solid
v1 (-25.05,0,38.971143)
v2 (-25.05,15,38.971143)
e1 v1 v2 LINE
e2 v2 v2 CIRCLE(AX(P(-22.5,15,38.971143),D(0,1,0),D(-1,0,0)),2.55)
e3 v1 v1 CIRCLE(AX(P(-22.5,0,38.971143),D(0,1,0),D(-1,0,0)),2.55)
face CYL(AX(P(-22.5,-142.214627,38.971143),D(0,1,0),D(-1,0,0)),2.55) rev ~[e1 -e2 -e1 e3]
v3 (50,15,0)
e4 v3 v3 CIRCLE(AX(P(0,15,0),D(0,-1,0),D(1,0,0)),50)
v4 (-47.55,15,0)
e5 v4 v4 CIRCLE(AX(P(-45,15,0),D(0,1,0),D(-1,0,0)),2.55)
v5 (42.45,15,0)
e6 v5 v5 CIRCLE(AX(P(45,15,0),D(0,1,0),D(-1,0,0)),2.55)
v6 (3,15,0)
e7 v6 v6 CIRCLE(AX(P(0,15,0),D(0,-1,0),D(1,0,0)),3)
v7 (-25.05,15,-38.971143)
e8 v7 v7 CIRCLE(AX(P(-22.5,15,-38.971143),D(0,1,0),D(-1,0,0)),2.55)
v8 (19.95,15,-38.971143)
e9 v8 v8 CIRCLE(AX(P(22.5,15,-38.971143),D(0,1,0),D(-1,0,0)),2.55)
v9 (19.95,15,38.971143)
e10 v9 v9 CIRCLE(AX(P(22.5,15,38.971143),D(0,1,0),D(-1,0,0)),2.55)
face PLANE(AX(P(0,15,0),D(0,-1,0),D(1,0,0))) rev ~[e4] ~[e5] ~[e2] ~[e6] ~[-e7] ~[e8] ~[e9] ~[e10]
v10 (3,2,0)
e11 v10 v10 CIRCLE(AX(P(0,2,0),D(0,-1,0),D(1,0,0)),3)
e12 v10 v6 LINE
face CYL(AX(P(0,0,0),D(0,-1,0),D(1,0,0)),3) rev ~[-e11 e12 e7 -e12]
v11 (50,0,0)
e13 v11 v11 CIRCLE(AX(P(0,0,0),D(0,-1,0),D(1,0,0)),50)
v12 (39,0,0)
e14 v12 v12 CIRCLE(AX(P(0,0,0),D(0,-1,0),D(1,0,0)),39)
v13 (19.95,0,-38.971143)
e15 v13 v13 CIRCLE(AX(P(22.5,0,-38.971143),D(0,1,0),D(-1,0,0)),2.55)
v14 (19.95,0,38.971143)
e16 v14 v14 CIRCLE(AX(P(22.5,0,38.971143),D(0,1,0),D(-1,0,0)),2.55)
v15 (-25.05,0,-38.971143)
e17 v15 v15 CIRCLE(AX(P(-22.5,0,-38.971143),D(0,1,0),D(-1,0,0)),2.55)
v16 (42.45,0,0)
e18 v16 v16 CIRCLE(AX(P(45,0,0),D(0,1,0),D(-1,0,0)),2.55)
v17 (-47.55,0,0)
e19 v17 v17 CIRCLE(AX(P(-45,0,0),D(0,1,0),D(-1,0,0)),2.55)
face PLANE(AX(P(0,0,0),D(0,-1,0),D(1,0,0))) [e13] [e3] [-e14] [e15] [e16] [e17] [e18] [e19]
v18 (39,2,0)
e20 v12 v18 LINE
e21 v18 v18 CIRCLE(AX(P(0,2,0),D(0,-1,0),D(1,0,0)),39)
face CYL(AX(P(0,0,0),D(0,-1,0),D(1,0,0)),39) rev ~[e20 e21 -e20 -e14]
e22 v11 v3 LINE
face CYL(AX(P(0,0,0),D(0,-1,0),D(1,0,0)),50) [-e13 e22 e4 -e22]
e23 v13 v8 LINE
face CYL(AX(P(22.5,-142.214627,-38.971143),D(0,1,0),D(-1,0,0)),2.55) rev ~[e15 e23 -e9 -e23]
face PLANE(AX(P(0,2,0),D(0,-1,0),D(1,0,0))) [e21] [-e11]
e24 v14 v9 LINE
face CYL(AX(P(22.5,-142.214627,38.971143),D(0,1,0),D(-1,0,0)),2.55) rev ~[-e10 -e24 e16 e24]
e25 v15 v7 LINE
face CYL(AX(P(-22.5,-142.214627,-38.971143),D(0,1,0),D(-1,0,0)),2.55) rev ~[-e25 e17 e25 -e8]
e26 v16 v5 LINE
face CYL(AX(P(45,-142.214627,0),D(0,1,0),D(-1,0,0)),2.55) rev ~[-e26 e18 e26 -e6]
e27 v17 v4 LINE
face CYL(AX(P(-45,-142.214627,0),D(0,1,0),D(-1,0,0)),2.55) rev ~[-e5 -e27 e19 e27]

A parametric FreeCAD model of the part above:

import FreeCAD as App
import Part
import Sketcher
Q = App.Units.Quantity

doc = App.newDocument("Part")
params = doc.addObject("Spreadsheet::Sheet", "Params")
for row, (alias, value) in enumerate([
    ("sketch1_diameter", "100 mm"),
    ("sketch1_diameter2", "6 mm"),
    ("pad1_length", "15 mm"),
    ("sketch2_diameter", "5.1 mm"),
    ("hole_diameter", "5.1 mm"),
    ("sketch3_diameter", "78 mm"),
    ("pocket1_length", "2 mm"),
], start=1):
    params.set(f"A{row}", alias)
    params.set(f"B{row}", "=" + value)
    params.setAlias(f"B{row}", alias)

body = doc.addObject("PartDesign::Body", "Body")

sketch1 = doc.addObject("Sketcher::SketchObject", "Sketch")
body.addObject(sketch1)
sketch1.AttachmentSupport = (doc.XZ_Plane, [""])
sketch1.MapMode = "FlatFace"
sketch1.addGeometry([
    Part.Circle(App.Vector(0, 0, 0), App.Vector(0, 0, 1), 50),
    Part.Circle(App.Vector(0, 0, 0), App.Vector(0, 0, 1), 3),
], False)
sketch1.addConstraint([
    Sketcher.Constraint("Coincident", 0, 3, -1, 1),
    Sketcher.Constraint("Coincident", 1, 3, -1, 1),
    Sketcher.Constraint("Diameter", 0, Q("100 mm")),
    Sketcher.Constraint("Diameter", 1, Q("6 mm")),
])
sketch1.setExpression("Constraints[2]", "Params.sketch1_diameter")
sketch1.setExpression("Constraints[3]", "Params.sketch1_diameter2")
pad1 = doc.addObject("PartDesign::Pad", "Pad")
body.addObject(pad1)
pad1.Profile = sketch1
pad1.setExpression("Length", "Params.pad1_length")
pad1.Reversed = True

sketch2 = doc.addObject("Sketcher::SketchObject", "Sketch001")
body.addObject(sketch2)
sketch2.AttachmentSupport = (doc.XZ_Plane, [""])
sketch2.MapMode = "FlatFace"
sketch2.addGeometry([
    Part.Circle(App.Vector(-22.5, 38.971143, 0), App.Vector(0, 0, 1), 2.55),
    Part.Circle(App.Vector(22.5, 38.971143, 0), App.Vector(0, 0, 1), 2.55),
    Part.Circle(App.Vector(45, 0, 0), App.Vector(0, 0, 1), 2.55),
    Part.Circle(App.Vector(22.5, -38.971143, 0), App.Vector(0, 0, 1), 2.55),
    Part.Circle(App.Vector(-22.5, -38.971143, 0), App.Vector(0, 0, 1), 2.55),
    Part.Circle(App.Vector(-45, 0, 0), App.Vector(0, 0, 1), 2.55),
], False)
sketch2.addConstraint([
    Sketcher.Constraint("Equal", 0, 1),
    Sketcher.Constraint("Equal", 1, 2),
    Sketcher.Constraint("Equal", 2, 3),
    Sketcher.Constraint("Equal", 3, 4),
    Sketcher.Constraint("Equal", 4, 5),
    Sketcher.Constraint("Symmetric", 0, 3, 3, 3, -1, 1),
    Sketcher.Constraint("Symmetric", 1, 3, 4, 3, -1, 1),
    Sketcher.Constraint("Symmetric", 2, 3, 5, 3, -1, 1),
    Sketcher.Constraint("Symmetric", 0, 3, 1, 3, -2),
    Sketcher.Constraint("PointOnObject", 2, 3, -1),
    Sketcher.Constraint("Diameter", 0, Q("5.1 mm")),
    Sketcher.Constraint("DistanceX", -1, 1, 2, 3, Q("45 mm")),
    Sketcher.Constraint("DistanceX", 0, 3, 1, 3, Q("45 mm")),
    Sketcher.Constraint("DistanceY", -1, 1, 0, 3, Q("38.971143 mm")),
])
sketch2.setExpression("Constraints[10]", "Params.sketch2_diameter")
doc.recompute()
hole = doc.addObject("PartDesign::Hole", "Hole")
body.addObject(hole)
hole.Profile = sketch2
hole.ThreadType = "None"
hole.setExpression("Diameter", "Params.hole_diameter")
hole.DepthType = "ThroughAll"

sketch3 = doc.addObject("Sketcher::SketchObject", "Sketch002")
body.addObject(sketch3)
sketch3.AttachmentSupport = (doc.XZ_Plane, [""])
sketch3.MapMode = "FlatFace"
sketch3.addGeometry(Part.Circle(App.Vector(0, 0, 0), App.Vector(0, 0, 1), 39), False)
sketch3.addConstraint([
    Sketcher.Constraint("Coincident", 0, 3, -1, 1),
    Sketcher.Constraint("Diameter", 0, Q("78 mm")),
])
sketch3.setExpression("Constraints[1]", "Params.sketch3_diameter")
pocket1 = doc.addObject("PartDesign::Pocket", "Pocket")
body.addObject(pocket1)
pocket1.Profile = sketch3
pocket1.setExpression("Length", "Params.pocket1_length")

doc.recompute()
